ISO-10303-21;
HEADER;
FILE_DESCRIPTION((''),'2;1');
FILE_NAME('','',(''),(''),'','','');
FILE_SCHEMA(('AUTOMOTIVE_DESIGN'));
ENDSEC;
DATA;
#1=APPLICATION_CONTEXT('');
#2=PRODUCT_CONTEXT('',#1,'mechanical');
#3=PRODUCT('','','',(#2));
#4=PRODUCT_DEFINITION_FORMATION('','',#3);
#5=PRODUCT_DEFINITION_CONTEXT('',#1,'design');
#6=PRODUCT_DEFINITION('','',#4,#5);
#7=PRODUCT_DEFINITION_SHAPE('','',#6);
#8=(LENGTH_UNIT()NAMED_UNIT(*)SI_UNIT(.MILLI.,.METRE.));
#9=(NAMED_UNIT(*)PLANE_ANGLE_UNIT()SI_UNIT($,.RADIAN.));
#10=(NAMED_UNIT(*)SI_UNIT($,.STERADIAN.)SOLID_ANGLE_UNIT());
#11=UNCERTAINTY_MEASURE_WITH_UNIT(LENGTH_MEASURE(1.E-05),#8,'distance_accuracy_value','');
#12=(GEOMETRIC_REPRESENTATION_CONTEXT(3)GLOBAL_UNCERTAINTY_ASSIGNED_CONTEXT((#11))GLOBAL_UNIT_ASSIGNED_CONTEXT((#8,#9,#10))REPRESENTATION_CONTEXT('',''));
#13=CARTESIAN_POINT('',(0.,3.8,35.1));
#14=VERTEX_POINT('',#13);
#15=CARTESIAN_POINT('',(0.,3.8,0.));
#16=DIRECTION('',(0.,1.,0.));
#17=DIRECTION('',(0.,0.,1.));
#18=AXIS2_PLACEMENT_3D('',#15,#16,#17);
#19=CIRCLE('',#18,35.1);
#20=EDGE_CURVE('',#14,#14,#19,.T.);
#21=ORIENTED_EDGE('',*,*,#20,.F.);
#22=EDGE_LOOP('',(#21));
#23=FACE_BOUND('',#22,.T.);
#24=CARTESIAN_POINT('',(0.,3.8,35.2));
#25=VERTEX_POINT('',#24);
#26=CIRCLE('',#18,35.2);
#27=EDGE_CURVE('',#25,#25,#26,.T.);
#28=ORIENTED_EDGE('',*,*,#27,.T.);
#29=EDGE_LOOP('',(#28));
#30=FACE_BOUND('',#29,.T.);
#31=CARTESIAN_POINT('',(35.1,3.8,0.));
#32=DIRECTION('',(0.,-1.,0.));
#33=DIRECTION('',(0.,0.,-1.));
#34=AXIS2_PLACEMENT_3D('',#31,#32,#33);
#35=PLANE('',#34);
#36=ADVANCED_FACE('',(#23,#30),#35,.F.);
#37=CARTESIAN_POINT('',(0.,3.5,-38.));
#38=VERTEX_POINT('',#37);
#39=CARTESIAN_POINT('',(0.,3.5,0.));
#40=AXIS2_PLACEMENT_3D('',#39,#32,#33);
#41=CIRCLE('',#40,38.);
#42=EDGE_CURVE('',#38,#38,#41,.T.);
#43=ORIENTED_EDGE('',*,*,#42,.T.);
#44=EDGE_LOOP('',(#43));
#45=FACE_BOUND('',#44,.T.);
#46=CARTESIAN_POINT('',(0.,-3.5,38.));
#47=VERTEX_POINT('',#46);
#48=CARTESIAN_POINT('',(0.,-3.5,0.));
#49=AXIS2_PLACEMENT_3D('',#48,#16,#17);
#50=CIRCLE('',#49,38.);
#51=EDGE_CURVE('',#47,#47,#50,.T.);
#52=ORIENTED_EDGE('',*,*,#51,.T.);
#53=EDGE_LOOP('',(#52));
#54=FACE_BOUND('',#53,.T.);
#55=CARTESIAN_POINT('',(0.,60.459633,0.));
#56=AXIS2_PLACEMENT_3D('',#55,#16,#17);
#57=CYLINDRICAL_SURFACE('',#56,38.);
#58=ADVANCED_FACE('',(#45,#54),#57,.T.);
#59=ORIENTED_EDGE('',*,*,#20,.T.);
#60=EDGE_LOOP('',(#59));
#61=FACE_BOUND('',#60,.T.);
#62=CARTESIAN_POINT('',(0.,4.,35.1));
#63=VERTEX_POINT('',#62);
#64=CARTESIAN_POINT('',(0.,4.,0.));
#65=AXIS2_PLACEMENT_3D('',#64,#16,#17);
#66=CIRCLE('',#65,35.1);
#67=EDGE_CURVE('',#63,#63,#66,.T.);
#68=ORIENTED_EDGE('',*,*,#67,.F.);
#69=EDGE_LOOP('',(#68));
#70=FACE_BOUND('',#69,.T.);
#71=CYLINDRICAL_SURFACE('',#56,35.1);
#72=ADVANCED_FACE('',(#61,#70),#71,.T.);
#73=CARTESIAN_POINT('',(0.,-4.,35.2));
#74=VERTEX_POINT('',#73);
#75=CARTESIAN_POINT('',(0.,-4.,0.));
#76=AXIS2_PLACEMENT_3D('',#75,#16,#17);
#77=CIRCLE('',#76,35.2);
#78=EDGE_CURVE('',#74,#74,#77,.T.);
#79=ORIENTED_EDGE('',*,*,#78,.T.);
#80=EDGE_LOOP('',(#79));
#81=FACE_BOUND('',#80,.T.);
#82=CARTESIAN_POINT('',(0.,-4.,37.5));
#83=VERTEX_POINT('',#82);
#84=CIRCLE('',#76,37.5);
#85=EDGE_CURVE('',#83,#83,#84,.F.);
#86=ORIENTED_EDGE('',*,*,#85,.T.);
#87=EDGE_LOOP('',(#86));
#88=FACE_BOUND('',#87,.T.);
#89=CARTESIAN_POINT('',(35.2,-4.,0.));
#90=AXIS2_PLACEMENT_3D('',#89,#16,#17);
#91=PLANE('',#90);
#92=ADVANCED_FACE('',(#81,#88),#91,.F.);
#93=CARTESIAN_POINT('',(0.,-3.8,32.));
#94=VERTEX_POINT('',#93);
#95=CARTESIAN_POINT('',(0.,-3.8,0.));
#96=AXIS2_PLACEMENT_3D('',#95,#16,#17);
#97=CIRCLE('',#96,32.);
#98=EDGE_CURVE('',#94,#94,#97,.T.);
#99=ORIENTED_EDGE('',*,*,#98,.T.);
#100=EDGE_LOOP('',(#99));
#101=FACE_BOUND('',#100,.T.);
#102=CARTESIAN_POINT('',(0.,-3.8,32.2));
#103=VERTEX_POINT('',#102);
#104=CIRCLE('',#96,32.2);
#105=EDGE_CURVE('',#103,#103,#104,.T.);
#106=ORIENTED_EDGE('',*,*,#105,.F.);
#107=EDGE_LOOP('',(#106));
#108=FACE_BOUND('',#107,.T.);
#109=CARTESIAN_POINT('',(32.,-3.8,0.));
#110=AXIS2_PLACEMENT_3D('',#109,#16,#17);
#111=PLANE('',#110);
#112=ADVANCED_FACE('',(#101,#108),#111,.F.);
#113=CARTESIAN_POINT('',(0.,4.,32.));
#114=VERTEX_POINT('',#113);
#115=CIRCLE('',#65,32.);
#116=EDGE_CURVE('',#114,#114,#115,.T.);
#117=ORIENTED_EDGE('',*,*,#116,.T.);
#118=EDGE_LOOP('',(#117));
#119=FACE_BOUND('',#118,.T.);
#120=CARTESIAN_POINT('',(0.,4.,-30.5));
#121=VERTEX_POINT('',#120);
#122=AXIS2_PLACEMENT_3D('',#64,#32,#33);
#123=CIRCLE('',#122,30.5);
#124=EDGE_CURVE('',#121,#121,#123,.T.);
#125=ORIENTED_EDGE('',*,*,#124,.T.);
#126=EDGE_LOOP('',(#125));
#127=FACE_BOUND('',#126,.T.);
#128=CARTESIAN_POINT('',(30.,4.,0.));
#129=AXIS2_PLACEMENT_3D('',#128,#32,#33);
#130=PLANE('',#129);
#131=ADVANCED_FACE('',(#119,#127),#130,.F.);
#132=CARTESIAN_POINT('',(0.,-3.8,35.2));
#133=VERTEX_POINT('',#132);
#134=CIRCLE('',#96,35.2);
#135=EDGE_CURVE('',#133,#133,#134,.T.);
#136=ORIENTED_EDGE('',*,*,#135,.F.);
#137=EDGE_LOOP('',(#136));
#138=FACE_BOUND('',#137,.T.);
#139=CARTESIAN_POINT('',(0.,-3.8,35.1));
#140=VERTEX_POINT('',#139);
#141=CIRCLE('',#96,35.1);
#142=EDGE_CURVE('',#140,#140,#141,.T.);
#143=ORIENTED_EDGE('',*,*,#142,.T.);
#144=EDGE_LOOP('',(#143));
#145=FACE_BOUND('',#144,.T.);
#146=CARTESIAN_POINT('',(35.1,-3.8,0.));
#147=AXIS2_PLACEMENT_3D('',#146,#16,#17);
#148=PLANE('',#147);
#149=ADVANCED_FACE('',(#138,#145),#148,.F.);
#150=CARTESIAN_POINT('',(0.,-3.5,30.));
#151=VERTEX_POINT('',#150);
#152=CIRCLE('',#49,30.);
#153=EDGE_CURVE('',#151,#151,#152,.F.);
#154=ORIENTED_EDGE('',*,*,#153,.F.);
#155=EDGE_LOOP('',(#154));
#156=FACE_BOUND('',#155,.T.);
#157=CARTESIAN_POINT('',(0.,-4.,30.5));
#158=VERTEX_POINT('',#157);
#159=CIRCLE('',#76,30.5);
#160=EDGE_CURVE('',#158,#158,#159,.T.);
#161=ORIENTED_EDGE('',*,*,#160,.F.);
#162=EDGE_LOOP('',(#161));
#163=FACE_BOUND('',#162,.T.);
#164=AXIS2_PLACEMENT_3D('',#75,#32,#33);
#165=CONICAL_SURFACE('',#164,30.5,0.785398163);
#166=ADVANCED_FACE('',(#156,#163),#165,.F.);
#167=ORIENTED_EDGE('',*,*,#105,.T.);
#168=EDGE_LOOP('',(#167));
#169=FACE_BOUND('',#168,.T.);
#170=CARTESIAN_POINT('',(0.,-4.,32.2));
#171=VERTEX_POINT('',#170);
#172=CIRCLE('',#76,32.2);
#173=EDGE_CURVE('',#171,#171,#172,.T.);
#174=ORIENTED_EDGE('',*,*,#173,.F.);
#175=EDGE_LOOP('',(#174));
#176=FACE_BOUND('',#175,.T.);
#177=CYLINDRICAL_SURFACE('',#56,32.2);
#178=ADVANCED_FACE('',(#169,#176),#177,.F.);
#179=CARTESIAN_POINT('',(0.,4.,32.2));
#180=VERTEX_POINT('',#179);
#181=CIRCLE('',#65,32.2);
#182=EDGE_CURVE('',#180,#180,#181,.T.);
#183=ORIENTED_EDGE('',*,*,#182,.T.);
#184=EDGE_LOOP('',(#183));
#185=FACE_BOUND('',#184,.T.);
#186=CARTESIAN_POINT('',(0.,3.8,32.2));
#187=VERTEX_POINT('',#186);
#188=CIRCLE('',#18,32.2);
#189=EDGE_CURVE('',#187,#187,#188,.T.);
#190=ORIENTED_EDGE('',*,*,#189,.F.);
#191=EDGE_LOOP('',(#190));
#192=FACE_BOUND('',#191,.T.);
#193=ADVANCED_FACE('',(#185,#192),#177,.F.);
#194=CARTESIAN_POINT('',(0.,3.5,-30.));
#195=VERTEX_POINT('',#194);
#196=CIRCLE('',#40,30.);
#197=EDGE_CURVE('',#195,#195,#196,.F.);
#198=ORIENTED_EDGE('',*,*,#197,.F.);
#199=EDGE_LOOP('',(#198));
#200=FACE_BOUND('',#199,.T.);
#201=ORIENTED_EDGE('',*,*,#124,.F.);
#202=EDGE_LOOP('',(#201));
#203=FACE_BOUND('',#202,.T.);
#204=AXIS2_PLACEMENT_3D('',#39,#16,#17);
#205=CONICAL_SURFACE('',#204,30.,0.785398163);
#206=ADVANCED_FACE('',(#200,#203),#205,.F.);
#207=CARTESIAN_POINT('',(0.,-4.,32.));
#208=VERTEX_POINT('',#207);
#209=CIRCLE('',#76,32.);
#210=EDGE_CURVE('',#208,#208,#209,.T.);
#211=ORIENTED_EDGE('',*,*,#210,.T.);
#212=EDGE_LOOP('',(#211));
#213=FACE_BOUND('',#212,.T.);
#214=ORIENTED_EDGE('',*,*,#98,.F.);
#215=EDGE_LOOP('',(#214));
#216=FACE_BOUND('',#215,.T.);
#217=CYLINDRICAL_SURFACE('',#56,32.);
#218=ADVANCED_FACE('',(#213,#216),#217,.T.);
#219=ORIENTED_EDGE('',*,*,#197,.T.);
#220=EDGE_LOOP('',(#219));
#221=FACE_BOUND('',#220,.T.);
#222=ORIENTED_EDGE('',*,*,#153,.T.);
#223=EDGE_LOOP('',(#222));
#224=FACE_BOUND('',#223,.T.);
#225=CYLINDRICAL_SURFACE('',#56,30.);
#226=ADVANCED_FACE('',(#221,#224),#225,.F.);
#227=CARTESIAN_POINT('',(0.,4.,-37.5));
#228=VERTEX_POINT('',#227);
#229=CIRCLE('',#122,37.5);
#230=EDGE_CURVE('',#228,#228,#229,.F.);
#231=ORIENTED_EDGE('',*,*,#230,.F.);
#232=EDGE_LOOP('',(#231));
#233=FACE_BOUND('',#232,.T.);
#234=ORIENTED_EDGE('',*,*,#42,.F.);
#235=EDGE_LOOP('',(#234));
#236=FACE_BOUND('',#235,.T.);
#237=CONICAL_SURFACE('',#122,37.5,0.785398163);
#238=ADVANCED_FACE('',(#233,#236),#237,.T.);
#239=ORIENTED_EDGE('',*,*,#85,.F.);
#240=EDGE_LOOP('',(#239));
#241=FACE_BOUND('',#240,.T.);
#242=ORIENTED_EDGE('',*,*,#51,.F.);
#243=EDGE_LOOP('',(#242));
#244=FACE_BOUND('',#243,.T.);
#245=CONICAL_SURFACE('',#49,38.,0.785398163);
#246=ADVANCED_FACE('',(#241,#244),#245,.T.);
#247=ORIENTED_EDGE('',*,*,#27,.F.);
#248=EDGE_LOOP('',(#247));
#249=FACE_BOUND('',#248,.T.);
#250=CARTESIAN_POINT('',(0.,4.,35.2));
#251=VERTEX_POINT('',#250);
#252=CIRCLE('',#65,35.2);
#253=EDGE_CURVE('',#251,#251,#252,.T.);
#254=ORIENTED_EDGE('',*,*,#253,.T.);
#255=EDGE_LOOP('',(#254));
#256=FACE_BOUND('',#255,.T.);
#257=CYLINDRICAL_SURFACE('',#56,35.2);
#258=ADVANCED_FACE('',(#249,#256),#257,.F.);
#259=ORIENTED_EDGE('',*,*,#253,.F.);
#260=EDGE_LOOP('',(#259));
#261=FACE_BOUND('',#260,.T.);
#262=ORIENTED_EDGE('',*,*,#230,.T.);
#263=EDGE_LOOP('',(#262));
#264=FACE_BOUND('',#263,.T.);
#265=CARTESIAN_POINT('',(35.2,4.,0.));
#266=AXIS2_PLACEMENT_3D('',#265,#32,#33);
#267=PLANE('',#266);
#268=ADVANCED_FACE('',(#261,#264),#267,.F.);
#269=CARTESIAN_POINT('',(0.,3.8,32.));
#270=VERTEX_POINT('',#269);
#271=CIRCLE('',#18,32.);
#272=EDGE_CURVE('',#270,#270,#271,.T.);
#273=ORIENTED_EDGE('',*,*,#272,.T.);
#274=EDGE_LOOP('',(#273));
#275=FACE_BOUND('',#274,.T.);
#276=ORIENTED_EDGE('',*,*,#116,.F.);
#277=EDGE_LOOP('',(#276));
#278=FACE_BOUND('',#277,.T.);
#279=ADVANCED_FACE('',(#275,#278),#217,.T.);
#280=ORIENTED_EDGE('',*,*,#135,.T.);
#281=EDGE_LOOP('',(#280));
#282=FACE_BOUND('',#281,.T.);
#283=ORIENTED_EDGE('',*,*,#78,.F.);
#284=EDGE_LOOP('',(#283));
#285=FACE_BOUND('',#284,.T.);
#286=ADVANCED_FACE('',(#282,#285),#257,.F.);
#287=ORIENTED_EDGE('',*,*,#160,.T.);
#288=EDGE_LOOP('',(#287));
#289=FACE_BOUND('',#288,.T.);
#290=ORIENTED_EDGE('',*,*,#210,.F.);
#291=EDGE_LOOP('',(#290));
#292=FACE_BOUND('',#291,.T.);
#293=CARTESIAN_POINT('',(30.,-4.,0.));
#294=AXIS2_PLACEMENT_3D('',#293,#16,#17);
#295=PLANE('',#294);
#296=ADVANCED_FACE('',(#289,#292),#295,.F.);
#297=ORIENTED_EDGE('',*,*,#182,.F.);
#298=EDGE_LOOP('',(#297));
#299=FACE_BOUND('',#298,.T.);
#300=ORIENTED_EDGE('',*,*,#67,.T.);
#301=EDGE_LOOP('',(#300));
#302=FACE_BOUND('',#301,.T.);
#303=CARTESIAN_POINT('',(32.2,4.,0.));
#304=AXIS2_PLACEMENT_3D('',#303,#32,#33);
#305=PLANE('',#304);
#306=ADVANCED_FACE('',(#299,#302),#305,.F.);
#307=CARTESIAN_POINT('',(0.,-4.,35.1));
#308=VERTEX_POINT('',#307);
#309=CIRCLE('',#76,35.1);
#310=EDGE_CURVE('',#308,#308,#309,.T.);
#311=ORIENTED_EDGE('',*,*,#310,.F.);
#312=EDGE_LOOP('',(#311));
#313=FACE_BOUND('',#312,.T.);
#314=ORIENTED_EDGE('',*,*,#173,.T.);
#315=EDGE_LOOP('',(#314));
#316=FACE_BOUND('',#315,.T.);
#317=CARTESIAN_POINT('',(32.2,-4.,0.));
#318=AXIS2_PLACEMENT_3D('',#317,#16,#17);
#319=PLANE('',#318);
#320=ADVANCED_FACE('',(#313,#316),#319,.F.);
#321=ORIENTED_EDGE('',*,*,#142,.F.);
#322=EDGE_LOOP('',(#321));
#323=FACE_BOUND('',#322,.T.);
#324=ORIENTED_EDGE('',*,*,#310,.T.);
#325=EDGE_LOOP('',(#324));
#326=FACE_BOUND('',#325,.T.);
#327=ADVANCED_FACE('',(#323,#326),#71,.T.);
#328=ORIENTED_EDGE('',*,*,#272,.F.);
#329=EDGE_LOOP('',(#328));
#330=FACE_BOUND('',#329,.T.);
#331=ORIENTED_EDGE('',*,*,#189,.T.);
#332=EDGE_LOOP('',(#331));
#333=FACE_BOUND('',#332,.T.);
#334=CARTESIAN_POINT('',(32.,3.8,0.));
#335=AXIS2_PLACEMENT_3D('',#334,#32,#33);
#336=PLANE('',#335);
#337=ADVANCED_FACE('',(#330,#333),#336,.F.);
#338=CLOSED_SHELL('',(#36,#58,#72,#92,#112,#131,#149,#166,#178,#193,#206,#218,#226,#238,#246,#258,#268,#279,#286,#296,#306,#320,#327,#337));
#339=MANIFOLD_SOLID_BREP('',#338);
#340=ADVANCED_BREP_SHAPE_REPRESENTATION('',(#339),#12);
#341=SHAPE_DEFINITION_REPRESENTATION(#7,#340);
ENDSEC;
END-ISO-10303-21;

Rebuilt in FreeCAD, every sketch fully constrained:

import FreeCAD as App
import Part
import Sketcher


def edges_at(feature, points):
    """Names of the edges that pass closest to the given points."""
    edges = feature.Shape.Edges
    near = lambda p: min(range(len(edges)), key=lambda i: edges[i].distToShape(Part.Vertex(*p))[0])
    return sorted({f"Edge{near(p) + 1}" for p in points})


def add_polygon(sketch, points):
    """Adds a closed chain of lines whose ends are joined by coincident constraints."""
    first, n = sketch.GeometryCount, len(points)
    for a, b in zip(points, points[1:] + points[:1]):
        sketch.addGeometry(Part.LineSegment(App.Vector(*a, 0), App.Vector(*b, 0)), False)
    for i in range(n):
        sketch.addConstraint(Sketcher.Constraint("Coincident", first + i, 2, first + (i + 1) % n, 1))

doc = App.newDocument("Part")
body = doc.addObject("PartDesign::Body", "Body")

# Sketch on XY plane
sketch1 = body.newObject("Sketcher::SketchObject", "Sketch")
sketch1.AttachmentSupport = (doc.getObject("XY_Plane"), [""])
sketch1.MapMode = "FlatFace"
add_polygon(sketch1, [(30, 4), (30, -4), (32, -4), (32, -3.8), (32.2, -3.8), (32.2, -4), (35.1, -4), (35.1, -3.8), (35.2, -3.8), (35.2, -4), (38, -4), (38, 4), (35.2, 4), (35.2, 3.8), (35.1, 3.8), (35.1, 4), (32.2, 4), (32.2, 3.8), (32, 3.8), (32, 4)])  # lines 0-19
sketch1.addConstraint([
    Sketcher.Constraint("Vertical", 0),
    Sketcher.Constraint("Horizontal", 1),
    Sketcher.Constraint("Vertical", 2),
    Sketcher.Constraint("Horizontal", 3),
    Sketcher.Constraint("Vertical", 4),
    Sketcher.Constraint("Horizontal", 5),
    Sketcher.Constraint("Vertical", 6),
    Sketcher.Constraint("Horizontal", 7),
    Sketcher.Constraint("Vertical", 8),
    Sketcher.Constraint("Horizontal", 9),
    Sketcher.Constraint("Vertical", 10),
    Sketcher.Constraint("Horizontal", 11),
    Sketcher.Constraint("Vertical", 12),
    Sketcher.Constraint("Horizontal", 13),
    Sketcher.Constraint("Vertical", 14),
    Sketcher.Constraint("Horizontal", 15),
    Sketcher.Constraint("Vertical", 16),
    Sketcher.Constraint("Horizontal", 17),
    Sketcher.Constraint("Vertical", 18),
    Sketcher.Constraint("Horizontal", 19),
    Sketcher.Constraint("Symmetric", 8, 2, 11, 2, -1),
    Sketcher.Constraint("Symmetric", 6, 2, 13, 2, -1),
    Sketcher.Constraint("Symmetric", 4, 2, 15, 2, -1),
    Sketcher.Constraint("Symmetric", 2, 2, 17, 2, -1),
    Sketcher.Constraint("Horizontal", 1, 2, 4, 2),
    Sketcher.Constraint("Horizontal", 3, 2, 6, 2),
    Sketcher.Constraint("Horizontal", 5, 2, 8, 2),
    Sketcher.Constraint("Horizontal", 15, 2, 18, 2),
    Sketcher.Constraint("Equal", 17, 2),
    Sketcher.Constraint("DistanceX", 1, 1, 1, 2, 2.0),
    Sketcher.Constraint("DistanceY", 0, 2, 0, 1, 8.0),
    Sketcher.Constraint("DistanceX", 3, 1, 3, 2, 0.2),
    Sketcher.Constraint("DistanceX", 5, 1, 5, 2, 2.9),
    Sketcher.Constraint("DistanceX", 7, 1, 7, 2, 0.1),
    Sketcher.Constraint("DistanceX", 9, 1, 9, 2, 2.8),
    Sketcher.Constraint("DistanceX", -1, 1, 0, 2, 30.0),
])
revolution = body.newObject("PartDesign::Revolution", "Revolution")
revolution.Profile = sketch1
revolution.ReferenceAxis = (sketch1, ["V_Axis"])
revolution.Angle = 360
doc.recompute()

chamfer = body.newObject("PartDesign::Chamfer", "Chamfer")
chamfer.Base = (revolution, edges_at(revolution, [
    (-38, 4, 0),
    (-38, -4, 0),
    (-30, -4, 0),
    (-30, 4, 0),
]))
chamfer.Size = 0.5

doc.recompute()
